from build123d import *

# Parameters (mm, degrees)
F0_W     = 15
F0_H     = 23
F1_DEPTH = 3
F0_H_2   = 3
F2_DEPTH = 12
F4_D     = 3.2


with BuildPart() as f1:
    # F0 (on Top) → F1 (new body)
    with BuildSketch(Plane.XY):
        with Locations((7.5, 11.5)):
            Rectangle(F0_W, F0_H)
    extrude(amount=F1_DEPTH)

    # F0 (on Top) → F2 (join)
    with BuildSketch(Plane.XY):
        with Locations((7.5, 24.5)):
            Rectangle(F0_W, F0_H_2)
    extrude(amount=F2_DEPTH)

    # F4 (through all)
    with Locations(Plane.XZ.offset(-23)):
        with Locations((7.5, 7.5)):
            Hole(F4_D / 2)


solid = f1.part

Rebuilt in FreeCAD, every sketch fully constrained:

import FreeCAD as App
import Part
import Sketcher

V = App.Vector

doc = App.newDocument("Part")
params = doc.addObject("Spreadsheet::Sheet", "Params")
for row, (alias, value) in enumerate([
    ("sketch1_width", "15 mm"),
    ("sketch1_height", "23 mm"),
    ("pad1_length", "3 mm"),
    ("sketch2_width", "15 mm"),
    ("sketch2_height", "3 mm"),
    ("pad2_length", "12 mm"),
    ("sketch3_diameter", "3.2 mm"),
    ("hole_diameter", "3.2 mm"),
], start=1):
    params.set(f"A{row}", alias)
    params.set(f"B{row}", "=" + value)
    params.setAlias(f"B{row}", alias)

body = doc.addObject("PartDesign::Body", "Body")

sketch1 = body.newObject("Sketcher::SketchObject", "Sketch")
sketch1.AttachmentSupport = (doc.getObject("XY_Plane"), [""])
sketch1.MapMode = "FlatFace"
sketch1.addGeometry(Part.LineSegment(V(0, 23, 0), V(0, 0, 0)), False)
sketch1.addGeometry(Part.LineSegment(V(0, 0, 0), V(15, 0, 0)), False)
sketch1.addGeometry(Part.LineSegment(V(15, 0, 0), V(15, 23, 0)), False)
sketch1.addGeometry(Part.LineSegment(V(15, 23, 0), V(0, 23, 0)), False)
sketch1.addConstraint(Sketcher.Constraint("Coincident", 0, 2, 1, 1))
sketch1.addConstraint(Sketcher.Constraint("Coincident", 1, 2, 2, 1))
sketch1.addConstraint(Sketcher.Constraint("Coincident", 2, 2, 3, 1))
sketch1.addConstraint(Sketcher.Constraint("Coincident", 3, 2, 0, 1))
sketch1.addConstraint(Sketcher.Constraint("Vertical", 0))
sketch1.addConstraint(Sketcher.Constraint("Horizontal", 1))
sketch1.addConstraint(Sketcher.Constraint("Vertical", 2))
sketch1.addConstraint(Sketcher.Constraint("Horizontal", 3))
sketch1.addConstraint(Sketcher.Constraint("Coincident", 0, 2, -1, 1))
sketch1.addConstraint(Sketcher.Constraint("DistanceX", 1, 1, 1, 2, 15.0))
sketch1.addConstraint(Sketcher.Constraint("DistanceY", 0, 2, 0, 1, 23.0))
sketch1.setExpression("Constraints[9]", "Params.sketch1_width")
sketch1.setExpression("Constraints[10]", "Params.sketch1_height")
pad1 = body.newObject("PartDesign::Pad", "Pad")
pad1.Profile = sketch1
pad1.setExpression("Length", "Params.pad1_length")

sketch2 = body.newObject("Sketcher::SketchObject", "Sketch001")
sketch2.AttachmentSupport = (doc.getObject("XY_Plane"), [""])
sketch2.MapMode = "FlatFace"
sketch2.addGeometry(Part.LineSegment(V(0, 26, 0), V(0, 23, 0)), False)
sketch2.addGeometry(Part.LineSegment(V(0, 23, 0), V(15, 23, 0)), False)
sketch2.addGeometry(Part.LineSegment(V(15, 23, 0), V(15, 26, 0)), False)
sketch2.addGeometry(Part.LineSegment(V(15, 26, 0), V(0, 26, 0)), False)
sketch2.addConstraint(Sketcher.Constraint("Coincident", 0, 2, 1, 1))
sketch2.addConstraint(Sketcher.Constraint("Coincident", 1, 2, 2, 1))
sketch2.addConstraint(Sketcher.Constraint("Coincident", 2, 2, 3, 1))
sketch2.addConstraint(Sketcher.Constraint("Coincident", 3, 2, 0, 1))
sketch2.addConstraint(Sketcher.Constraint("Vertical", 0))
sketch2.addConstraint(Sketcher.Constraint("Horizontal", 1))
sketch2.addConstraint(Sketcher.Constraint("Vertical", 2))
sketch2.addConstraint(Sketcher.Constraint("Horizontal", 3))
sketch2.addConstraint(Sketcher.Constraint("PointOnObject", 0, 2, -2))
sketch2.addConstraint(Sketcher.Constraint("DistanceX", 1, 1, 1, 2, 15.0))
sketch2.addConstraint(Sketcher.Constraint("DistanceY", 0, 2, 0, 1, 3.0))
sketch2.addConstraint(Sketcher.Constraint("DistanceY", -1, 1, 0, 2, 23.0))
sketch2.setExpression("Constraints[9]", "Params.sketch2_width")
sketch2.setExpression("Constraints[10]", "Params.sketch2_height")
pad2 = body.newObject("PartDesign::Pad", "Pad001")
pad2.Profile = sketch2
pad2.setExpression("Length", "Params.pad2_length")

sketch3 = body.newObject("Sketcher::SketchObject", "Sketch002")
sketch3.AttachmentSupport = (doc.getObject("XZ_Plane"), [""])
sketch3.MapMode = "FlatFace"
sketch3.AttachmentOffset = App.Placement(V(0, 0, -23), App.Rotation())
sketch3.addGeometry(Part.Circle(V(7.5, 7.5, 0), V(0, 0, 1), 1.6), False)
sketch3.addConstraint(Sketcher.Constraint("Diameter", 0, 3.2))
sketch3.addConstraint(Sketcher.Constraint("DistanceX", -1, 1, 0, 3, 7.5))
sketch3.addConstraint(Sketcher.Constraint("DistanceY", -1, 1, 0, 3, 7.5))
sketch3.setExpression("Constraints[0]", "Params.sketch3_diameter")
doc.recompute()
hole = body.newObject("PartDesign::Hole", "Hole")
hole.Profile = sketch3
hole.ThreadType = "None"
hole.setExpression("Diameter", "Params.hole_diameter")
hole.DepthType = "ThroughAll"

doc.recompute()
